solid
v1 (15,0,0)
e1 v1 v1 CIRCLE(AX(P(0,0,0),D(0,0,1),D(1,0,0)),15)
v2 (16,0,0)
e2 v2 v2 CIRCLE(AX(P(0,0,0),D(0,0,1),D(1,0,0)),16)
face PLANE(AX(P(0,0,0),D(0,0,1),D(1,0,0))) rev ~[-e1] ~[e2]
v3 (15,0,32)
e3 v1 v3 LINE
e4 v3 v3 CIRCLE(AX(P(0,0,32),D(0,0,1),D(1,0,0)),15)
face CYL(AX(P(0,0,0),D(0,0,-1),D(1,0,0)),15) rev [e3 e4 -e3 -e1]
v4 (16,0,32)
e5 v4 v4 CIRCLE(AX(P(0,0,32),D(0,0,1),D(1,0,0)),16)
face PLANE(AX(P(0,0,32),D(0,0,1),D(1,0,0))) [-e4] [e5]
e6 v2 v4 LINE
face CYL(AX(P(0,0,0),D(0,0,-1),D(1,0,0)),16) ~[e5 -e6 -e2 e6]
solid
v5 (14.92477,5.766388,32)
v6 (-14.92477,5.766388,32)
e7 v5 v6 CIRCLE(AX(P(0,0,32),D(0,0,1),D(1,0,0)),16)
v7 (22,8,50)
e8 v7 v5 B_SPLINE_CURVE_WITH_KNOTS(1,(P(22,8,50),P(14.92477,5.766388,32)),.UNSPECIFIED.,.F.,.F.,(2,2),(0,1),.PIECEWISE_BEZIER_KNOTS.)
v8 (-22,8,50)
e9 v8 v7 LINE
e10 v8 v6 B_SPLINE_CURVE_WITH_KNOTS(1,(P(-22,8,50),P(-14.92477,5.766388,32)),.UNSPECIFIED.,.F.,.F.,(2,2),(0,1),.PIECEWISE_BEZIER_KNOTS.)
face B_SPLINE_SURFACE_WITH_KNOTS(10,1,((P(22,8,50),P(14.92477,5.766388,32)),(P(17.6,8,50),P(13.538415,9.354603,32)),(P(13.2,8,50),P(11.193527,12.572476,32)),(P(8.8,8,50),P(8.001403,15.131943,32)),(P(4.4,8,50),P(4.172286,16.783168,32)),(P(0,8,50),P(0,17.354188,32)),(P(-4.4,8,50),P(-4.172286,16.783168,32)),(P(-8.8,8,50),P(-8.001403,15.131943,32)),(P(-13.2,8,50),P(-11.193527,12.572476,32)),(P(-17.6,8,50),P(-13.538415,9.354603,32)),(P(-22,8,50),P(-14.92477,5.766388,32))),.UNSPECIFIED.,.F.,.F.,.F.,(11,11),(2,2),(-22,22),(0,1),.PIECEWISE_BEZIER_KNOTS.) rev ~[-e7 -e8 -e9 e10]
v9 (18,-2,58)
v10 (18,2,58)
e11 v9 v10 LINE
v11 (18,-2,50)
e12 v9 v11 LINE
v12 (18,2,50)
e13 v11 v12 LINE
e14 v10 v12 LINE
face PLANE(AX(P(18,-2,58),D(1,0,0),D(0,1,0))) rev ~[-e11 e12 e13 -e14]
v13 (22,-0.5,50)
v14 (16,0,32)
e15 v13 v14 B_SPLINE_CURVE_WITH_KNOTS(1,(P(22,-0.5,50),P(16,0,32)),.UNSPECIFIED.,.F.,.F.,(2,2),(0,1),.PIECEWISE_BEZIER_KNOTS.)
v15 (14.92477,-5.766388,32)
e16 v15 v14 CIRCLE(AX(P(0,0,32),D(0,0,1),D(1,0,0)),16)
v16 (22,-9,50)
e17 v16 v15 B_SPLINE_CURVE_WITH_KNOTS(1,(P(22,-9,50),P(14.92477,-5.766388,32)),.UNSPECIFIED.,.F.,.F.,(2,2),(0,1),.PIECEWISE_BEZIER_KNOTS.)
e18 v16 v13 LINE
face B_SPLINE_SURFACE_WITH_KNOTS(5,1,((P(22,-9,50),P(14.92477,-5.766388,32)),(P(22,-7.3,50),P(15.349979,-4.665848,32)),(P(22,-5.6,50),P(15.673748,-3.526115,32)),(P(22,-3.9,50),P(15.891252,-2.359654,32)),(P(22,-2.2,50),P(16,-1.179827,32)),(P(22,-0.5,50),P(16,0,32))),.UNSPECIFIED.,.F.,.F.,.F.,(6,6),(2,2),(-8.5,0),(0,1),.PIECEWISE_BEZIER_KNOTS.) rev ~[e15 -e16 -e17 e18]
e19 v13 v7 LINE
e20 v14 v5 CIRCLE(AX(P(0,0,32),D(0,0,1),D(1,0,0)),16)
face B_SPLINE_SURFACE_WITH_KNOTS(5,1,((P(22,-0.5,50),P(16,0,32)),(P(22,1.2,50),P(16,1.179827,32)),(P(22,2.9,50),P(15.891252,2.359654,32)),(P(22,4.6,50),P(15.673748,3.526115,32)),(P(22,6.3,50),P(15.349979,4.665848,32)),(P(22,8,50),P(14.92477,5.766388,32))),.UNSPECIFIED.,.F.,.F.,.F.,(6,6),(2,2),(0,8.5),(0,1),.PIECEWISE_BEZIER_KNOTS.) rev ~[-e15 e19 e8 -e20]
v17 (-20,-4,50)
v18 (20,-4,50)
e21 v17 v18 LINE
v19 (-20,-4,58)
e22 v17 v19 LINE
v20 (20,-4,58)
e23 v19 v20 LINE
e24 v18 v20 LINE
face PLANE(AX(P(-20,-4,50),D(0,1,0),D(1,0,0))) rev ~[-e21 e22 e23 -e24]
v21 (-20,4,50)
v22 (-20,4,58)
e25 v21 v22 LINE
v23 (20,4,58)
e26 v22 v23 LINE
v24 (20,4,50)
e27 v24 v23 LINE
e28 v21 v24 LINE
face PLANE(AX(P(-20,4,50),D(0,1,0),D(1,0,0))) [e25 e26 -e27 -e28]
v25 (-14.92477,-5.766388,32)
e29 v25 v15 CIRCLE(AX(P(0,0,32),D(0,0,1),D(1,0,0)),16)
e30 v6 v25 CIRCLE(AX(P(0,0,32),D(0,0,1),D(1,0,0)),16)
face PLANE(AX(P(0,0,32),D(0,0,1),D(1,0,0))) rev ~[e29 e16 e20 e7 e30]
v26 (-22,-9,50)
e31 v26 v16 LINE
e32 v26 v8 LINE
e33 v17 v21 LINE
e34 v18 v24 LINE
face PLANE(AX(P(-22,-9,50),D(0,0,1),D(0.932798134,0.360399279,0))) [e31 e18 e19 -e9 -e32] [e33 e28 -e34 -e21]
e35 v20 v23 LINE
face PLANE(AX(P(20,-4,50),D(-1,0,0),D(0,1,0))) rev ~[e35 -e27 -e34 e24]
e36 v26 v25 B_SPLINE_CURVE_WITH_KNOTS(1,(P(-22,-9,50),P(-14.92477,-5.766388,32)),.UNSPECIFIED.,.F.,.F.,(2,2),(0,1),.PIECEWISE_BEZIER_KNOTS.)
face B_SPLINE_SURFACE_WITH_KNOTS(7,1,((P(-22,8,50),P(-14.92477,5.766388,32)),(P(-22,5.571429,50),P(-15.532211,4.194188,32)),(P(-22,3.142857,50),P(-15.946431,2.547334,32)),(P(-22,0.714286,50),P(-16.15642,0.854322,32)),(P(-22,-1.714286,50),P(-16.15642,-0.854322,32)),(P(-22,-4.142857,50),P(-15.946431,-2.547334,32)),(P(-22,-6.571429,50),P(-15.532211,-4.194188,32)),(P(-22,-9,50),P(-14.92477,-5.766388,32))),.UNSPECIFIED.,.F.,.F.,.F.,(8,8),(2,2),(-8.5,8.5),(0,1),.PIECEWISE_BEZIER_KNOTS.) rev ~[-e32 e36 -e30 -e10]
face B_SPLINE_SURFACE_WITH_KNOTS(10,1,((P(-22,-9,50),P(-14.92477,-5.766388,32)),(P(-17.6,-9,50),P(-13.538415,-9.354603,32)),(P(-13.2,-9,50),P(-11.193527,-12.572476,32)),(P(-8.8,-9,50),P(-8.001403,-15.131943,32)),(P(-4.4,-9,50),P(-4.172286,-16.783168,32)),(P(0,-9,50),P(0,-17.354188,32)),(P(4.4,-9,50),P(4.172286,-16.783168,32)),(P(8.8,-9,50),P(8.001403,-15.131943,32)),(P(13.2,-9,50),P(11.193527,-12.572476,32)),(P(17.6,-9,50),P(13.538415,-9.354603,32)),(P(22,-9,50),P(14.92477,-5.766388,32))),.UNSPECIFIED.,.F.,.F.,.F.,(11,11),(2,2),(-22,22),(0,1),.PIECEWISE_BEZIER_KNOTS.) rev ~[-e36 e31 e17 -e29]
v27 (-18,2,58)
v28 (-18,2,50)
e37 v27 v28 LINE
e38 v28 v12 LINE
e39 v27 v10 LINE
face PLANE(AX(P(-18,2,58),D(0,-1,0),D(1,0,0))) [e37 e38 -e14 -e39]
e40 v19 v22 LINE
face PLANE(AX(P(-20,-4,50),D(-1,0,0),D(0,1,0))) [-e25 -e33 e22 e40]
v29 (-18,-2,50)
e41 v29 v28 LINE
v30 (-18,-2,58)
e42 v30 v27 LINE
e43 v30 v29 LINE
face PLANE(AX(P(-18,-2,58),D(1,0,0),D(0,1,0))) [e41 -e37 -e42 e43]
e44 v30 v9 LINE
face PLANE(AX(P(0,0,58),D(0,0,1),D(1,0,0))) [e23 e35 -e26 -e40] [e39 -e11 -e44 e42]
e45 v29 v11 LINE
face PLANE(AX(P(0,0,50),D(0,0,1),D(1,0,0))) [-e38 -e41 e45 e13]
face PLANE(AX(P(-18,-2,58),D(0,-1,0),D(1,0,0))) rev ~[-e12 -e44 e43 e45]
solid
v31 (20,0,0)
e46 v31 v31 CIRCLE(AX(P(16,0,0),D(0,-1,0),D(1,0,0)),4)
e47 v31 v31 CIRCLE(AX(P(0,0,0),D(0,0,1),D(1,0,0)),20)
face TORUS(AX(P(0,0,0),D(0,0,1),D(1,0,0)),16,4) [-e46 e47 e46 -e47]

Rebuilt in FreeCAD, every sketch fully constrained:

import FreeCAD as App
import Part
import Sketcher

V = App.Vector
Q = App.Units.Quantity


def add_polygon(sketch, points):
    """Adds a closed chain of lines whose ends are joined by coincident constraints."""
    first, n = sketch.GeometryCount, len(points)
    for a, b in zip(points, points[1:] + points[:1]):
        sketch.addGeometry(Part.LineSegment(App.Vector(*a, 0), App.Vector(*b, 0)), False)
    for i in range(n):
        sketch.addConstraint(Sketcher.Constraint("Coincident", first + i, 2, first + (i + 1) % n, 1))

doc = App.newDocument("Part")
body = doc.addObject("PartDesign::Body", "Body")

# Sketch on XY plane
sketch1 = body.newObject("Sketcher::SketchObject", "Sketch")
sketch1.AttachmentSupport = (doc.getObject("XY_Plane"), [""])
sketch1.MapMode = "FlatFace"
sketch1.AttachmentOffset = App.Placement(V(0, 0, 50), App.Rotation())
add_polygon(sketch1, [(-22, 8), (-22, -9), (22, -9), (22, 8)])  # lines 0-3
sketch1.addConstraint([
    Sketcher.Constraint("Vertical", 0),
    Sketcher.Constraint("Horizontal", 1),
    Sketcher.Constraint("Vertical", 2),
    Sketcher.Constraint("Horizontal", 3),
    Sketcher.Constraint("DistanceX", 1, 1, 1, 2, Q("44 mm")),
    Sketcher.Constraint("DistanceY", 0, 2, 0, 1, Q("17 mm")),
    Sketcher.Constraint("DistanceX", 0, 2, -1, 1, Q("22 mm")),
    Sketcher.Constraint("DistanceY", 0, 2, -1, 1, Q("9 mm")),
])

# Sketch on XY plane
sketch2 = body.newObject("Sketcher::SketchObject", "Sketch001")
sketch2.AttachmentSupport = (doc.getObject("XY_Plane"), [""])
sketch2.MapMode = "FlatFace"
sketch2.AttachmentOffset = App.Placement(V(0, 0, 32), App.Rotation())
sketch2.addGeometry(Part.Circle(V(0, 0, 0), V(0, 0, 1), 16), False)
sketch2.addConstraint([
    Sketcher.Constraint("Coincident", 0, 3, -1, 1),
    Sketcher.Constraint("Diameter", 0, Q("32 mm")),
])

additiveloft = body.newObject("PartDesign::AdditiveLoft", "AdditiveLoft")
additiveloft.Profile = sketch1
additiveloft.Sections = [sketch2]
additiveloft.Ruled = True

# Sketch on XY plane
sketch3 = body.newObject("Sketcher::SketchObject", "Sketch002")
sketch3.AttachmentSupport = (doc.getObject("XY_Plane"), [""])
sketch3.MapMode = "FlatFace"
sketch3.AttachmentOffset = App.Placement(V(0, 0, 50), App.Rotation())
add_polygon(sketch3, [(-20, 4), (-20, -4), (20, -4), (20, 4)])  # lines 0-3
sketch3.addConstraint([
    Sketcher.Constraint("Vertical", 0),
    Sketcher.Constraint("Horizontal", 1),
    Sketcher.Constraint("Vertical", 2),
    Sketcher.Constraint("Horizontal", 3),
    Sketcher.Constraint("Symmetric", 0, 2, 2, 2, -1, 1),
    Sketcher.Constraint("DistanceX", 1, 1, 1, 2, Q("40 mm")),
    Sketcher.Constraint("DistanceY", 0, 2, 0, 1, Q("8 mm")),
])
pad1 = body.newObject("PartDesign::Pad", "Pad")
pad1.Profile = sketch3
pad1.Length = 8

# Sketch on XY plane
sketch4 = body.newObject("Sketcher::SketchObject", "Sketch003")
sketch4.AttachmentSupport = (doc.getObject("XY_Plane"), [""])
sketch4.MapMode = "FlatFace"
sketch4.AttachmentOffset = App.Placement(V(0, 0, 58), App.Rotation())
add_polygon(sketch4, [(-18, 2), (-18, -2), (18, -2), (18, 2)])  # lines 0-3
sketch4.addConstraint([
    Sketcher.Constraint("Vertical", 0),
    Sketcher.Constraint("Horizontal", 1),
    Sketcher.Constraint("Vertical", 2),
    Sketcher.Constraint("Horizontal", 3),
    Sketcher.Constraint("Symmetric", 0, 2, 2, 2, -1, 1),
    Sketcher.Constraint("DistanceX", 1, 1, 1, 2, Q("36 mm")),
    Sketcher.Constraint("DistanceY", 0, 2, 0, 1, Q("4 mm")),
])
pocket1 = body.newObject("PartDesign::Pocket", "Pocket")
pocket1.Profile = sketch4
pocket1.Length = 8
body2 = doc.addObject("PartDesign::Body", "Body001")

# Sketch on XZ plane
sketch5 = body2.newObject("Sketcher::SketchObject", "Sketch004")
sketch5.AttachmentSupport = (doc.getObject("XZ_Plane001"), [""])
sketch5.MapMode = "FlatFace"
sketch5.addGeometry(Part.Circle(V(16, 0, 0), V(0, 0, 1), 4), False)
sketch5.addConstraint([
    Sketcher.Constraint("PointOnObject", 0, 3, -1),
    Sketcher.Constraint("Diameter", 0, Q("8 mm")),
    Sketcher.Constraint("DistanceX", -1, 1, 0, 3, Q("16 mm")),
])
revolution = body2.newObject("PartDesign::Revolution", "Revolution")
revolution.Profile = sketch5
revolution.ReferenceAxis = (sketch5, ["V_Axis"])
revolution.Angle = 360
body3 = doc.addObject("PartDesign::Body", "Body002")

# Sketch on XY plane
sketch6 = body3.newObject("Sketcher::SketchObject", "Sketch005")
sketch6.AttachmentSupport = (doc.getObject("XY_Plane002"), [""])
sketch6.MapMode = "FlatFace"
sketch6.addGeometry(Part.Circle(V(0, 0, 0), V(0, 0, 1), 15), False)
sketch6.addConstraint([
    Sketcher.Constraint("Coincident", 0, 3, -1, 1),
    Sketcher.Constraint("Diameter", 0, Q("30 mm")),
])
pad2 = body3.newObject("PartDesign::Pad", "Pad001")
pad2.Profile = sketch6
pad2.Length = 32
body4 = doc.addObject("PartDesign::Body", "Body003")

# Sketch on XY plane
sketch7 = body4.newObject("Sketcher::SketchObject", "Sketch006")
sketch7.AttachmentSupport = (doc.getObject("XY_Plane003"), [""])
sketch7.MapMode = "FlatFace"
sketch7.addGeometry(Part.Circle(V(0, 0, 0), V(0, 0, 1), 16), False)
sketch7.addConstraint([
    Sketcher.Constraint("Coincident", 0, 3, -1, 1),
    Sketcher.Constraint("Diameter", 0, Q("32 mm")),
])
pad3 = body4.newObject("PartDesign::Pad", "Pad002")
pad3.Profile = sketch7
pad3.Length = 32
doc.recompute()

boolean = body4.newObject("PartDesign::Boolean", "Boolean")
boolean.Type = "Cut"
boolean.addObjects([body3])

doc.recompute()
